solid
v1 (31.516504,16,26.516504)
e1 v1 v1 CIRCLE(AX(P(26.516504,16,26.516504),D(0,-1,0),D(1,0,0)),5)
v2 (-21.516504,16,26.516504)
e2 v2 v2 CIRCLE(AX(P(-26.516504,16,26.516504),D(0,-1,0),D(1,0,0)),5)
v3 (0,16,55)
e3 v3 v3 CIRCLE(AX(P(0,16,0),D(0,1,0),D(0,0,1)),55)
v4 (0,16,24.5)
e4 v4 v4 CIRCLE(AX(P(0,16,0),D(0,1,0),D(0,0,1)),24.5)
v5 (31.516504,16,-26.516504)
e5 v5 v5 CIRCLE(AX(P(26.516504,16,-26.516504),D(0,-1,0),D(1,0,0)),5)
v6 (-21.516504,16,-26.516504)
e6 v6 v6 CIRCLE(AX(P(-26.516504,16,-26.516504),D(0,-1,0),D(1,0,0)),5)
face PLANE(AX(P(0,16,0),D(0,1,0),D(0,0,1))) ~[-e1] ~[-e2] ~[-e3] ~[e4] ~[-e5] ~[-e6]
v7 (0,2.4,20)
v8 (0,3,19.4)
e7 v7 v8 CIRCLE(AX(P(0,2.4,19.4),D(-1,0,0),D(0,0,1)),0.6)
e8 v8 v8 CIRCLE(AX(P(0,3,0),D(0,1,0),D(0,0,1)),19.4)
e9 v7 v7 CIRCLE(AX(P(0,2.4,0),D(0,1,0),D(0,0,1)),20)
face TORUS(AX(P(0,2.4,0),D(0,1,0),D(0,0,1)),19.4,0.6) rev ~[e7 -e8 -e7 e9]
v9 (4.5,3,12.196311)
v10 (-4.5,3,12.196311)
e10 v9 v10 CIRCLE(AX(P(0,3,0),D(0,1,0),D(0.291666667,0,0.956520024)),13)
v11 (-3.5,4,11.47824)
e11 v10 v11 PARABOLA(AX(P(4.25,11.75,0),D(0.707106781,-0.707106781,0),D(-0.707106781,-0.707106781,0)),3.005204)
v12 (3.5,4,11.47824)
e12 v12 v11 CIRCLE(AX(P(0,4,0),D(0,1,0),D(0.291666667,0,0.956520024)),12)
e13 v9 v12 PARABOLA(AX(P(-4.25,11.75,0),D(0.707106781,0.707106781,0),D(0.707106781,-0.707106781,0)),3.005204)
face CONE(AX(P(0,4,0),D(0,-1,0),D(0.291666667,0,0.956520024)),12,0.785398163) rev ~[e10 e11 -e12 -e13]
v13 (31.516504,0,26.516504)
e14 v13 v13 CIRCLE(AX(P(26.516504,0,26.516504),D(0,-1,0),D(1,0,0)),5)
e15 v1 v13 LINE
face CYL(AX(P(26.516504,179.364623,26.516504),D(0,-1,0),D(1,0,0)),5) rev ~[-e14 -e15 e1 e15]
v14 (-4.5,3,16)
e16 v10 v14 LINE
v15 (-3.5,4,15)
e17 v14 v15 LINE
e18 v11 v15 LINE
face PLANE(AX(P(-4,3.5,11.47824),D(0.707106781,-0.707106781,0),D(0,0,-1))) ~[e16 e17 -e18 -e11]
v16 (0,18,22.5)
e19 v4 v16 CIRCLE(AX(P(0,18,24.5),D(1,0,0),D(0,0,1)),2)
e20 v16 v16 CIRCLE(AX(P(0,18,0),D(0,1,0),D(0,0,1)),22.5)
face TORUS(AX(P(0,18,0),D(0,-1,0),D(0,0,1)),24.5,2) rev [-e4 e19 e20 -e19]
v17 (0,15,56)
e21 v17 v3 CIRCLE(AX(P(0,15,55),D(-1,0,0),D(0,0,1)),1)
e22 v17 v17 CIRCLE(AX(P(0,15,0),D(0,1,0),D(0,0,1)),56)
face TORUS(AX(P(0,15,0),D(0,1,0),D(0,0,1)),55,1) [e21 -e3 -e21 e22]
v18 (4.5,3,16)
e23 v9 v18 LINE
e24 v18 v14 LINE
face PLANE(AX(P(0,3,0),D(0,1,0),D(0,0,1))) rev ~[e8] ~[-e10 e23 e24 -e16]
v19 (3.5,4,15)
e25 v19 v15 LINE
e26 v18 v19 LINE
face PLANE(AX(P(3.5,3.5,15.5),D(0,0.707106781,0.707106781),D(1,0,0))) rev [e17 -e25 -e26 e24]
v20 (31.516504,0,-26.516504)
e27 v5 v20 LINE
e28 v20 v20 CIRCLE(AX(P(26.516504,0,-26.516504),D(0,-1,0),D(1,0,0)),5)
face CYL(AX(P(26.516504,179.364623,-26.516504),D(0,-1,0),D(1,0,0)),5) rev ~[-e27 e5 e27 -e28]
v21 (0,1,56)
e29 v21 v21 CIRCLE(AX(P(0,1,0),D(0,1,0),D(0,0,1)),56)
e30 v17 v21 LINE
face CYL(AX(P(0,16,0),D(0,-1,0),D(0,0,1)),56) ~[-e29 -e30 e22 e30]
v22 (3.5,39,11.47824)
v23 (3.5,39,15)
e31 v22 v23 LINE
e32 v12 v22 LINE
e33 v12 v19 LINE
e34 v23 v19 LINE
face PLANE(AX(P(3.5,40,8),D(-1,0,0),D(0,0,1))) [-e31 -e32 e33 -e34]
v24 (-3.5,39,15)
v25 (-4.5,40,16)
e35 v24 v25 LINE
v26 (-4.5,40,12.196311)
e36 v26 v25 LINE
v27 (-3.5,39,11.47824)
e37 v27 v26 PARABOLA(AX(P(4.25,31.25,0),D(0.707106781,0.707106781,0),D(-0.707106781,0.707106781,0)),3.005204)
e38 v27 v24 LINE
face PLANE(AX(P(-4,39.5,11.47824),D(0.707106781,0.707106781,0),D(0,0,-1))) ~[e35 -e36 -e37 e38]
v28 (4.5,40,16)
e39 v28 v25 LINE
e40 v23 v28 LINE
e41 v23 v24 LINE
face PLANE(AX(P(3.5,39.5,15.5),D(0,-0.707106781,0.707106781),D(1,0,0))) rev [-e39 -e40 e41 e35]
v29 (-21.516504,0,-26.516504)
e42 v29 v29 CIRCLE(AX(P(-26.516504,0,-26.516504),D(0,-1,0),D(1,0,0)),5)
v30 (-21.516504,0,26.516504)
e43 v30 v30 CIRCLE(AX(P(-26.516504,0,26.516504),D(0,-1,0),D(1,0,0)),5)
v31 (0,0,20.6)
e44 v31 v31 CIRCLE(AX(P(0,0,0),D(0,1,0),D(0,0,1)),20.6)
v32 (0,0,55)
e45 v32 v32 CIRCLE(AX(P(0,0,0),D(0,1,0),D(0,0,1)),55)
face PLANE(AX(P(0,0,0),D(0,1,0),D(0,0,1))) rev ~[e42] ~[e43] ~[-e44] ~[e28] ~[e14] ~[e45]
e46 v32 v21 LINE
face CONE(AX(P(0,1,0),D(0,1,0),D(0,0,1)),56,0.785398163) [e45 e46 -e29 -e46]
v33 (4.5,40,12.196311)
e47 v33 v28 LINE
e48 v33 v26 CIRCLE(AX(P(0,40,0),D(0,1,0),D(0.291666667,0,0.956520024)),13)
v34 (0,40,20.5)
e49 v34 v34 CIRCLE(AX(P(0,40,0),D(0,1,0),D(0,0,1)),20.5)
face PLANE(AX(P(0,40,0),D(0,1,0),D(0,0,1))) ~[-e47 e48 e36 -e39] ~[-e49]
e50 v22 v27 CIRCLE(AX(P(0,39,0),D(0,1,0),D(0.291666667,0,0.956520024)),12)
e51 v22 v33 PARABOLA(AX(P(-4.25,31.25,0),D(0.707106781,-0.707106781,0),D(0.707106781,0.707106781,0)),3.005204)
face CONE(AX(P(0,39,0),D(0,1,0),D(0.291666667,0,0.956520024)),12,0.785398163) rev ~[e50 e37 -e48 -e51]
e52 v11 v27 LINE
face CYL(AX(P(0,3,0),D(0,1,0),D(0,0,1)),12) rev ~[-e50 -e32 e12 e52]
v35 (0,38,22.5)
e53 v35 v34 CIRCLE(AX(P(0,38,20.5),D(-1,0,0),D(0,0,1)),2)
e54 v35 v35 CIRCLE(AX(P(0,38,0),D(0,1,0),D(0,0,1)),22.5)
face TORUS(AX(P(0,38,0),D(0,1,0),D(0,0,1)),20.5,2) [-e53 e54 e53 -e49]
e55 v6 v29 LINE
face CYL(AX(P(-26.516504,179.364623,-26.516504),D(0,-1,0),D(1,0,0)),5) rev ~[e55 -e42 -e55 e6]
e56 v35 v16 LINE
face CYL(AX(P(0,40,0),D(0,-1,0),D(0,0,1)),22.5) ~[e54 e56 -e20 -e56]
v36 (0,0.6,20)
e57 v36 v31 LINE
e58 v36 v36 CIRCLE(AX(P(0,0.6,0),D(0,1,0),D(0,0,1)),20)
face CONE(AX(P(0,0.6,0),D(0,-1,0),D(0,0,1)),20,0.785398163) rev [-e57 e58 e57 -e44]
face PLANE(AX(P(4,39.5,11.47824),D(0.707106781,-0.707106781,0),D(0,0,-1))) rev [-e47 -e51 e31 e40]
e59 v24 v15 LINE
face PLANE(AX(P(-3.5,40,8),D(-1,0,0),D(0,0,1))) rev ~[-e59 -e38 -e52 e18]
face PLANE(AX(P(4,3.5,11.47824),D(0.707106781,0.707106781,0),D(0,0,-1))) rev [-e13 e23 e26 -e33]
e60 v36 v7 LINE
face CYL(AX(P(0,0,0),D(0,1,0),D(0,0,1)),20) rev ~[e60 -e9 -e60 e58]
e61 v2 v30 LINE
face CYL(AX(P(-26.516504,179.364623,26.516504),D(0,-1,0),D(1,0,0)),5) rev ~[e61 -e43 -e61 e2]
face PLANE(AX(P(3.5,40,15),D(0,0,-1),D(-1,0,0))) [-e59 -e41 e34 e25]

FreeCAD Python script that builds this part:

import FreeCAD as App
import Part
import Sketcher
from FreeCAD import Vector


def edges_at(feature, points):
    """Names of the edges that pass closest to the given points."""
    edges = feature.Shape.Edges
    near = lambda p: min(range(len(edges)), key=lambda i: edges[i].distToShape(Part.Vertex(*p))[0])
    return sorted({f"Edge{near(p) + 1}" for p in points})


def add_polygon(sketch, points):
    """Adds a closed chain of lines whose ends are joined by coincident constraints."""
    first, n = sketch.GeometryCount, len(points)
    for a, b in zip(points, points[1:] + points[:1]):
        sketch.addGeometry(Part.LineSegment(App.Vector(*a, 0), App.Vector(*b, 0)), False)
    for i in range(n):
        sketch.addConstraint(Sketcher.Constraint("Coincident", first + i, 2, first + (i + 1) % n, 1))

doc = App.newDocument("Part")
body = doc.addObject("PartDesign::Body", "Body")

# Sketch on YZ plane
sketch1 = doc.addObject("Sketcher::SketchObject", "Sketch")
body.addObject(sketch1)
sketch1.AttachmentSupport = (doc.YZ_Plane, [""])
sketch1.MapMode = "FlatFace"
add_polygon(sketch1, [(0, 56), (0, 20), (3, 20), (3, 12), (40, 12), (40, 22.5), (16, 22.5), (16, 56)])  # lines 0-7
sketch1.addConstraint(Sketcher.Constraint("Vertical", 0))
sketch1.addConstraint(Sketcher.Constraint("Horizontal", 1))
sketch1.addConstraint(Sketcher.Constraint("Vertical", 2))
sketch1.addConstraint(Sketcher.Constraint("Horizontal", 3))
sketch1.addConstraint(Sketcher.Constraint("Vertical", 4))
sketch1.addConstraint(Sketcher.Constraint("Horizontal", 5))
sketch1.addConstraint(Sketcher.Constraint("Vertical", 6))
sketch1.addConstraint(Sketcher.Constraint("Horizontal", 7))
sketch1.addConstraint(Sketcher.Constraint("PointOnObject", 0, 2, -2))
sketch1.addConstraint(Sketcher.Constraint("DistanceX", 1, 1, 1, 2, 3.0))
sketch1.addConstraint(Sketcher.Constraint("DistanceX", 3, 1, 3, 2, 37.0))
sketch1.addConstraint(Sketcher.Constraint("DistanceX", 5, 2, 5, 1, 24.0))
sketch1.addConstraint(Sketcher.Constraint("DistanceY", 0, 2, 0, 1, 36.0))
sketch1.addConstraint(Sketcher.Constraint("DistanceY", 2, 2, 2, 1, 8.0))
sketch1.addConstraint(Sketcher.Constraint("DistanceY", 4, 1, 4, 2, 10.5))
sketch1.addConstraint(Sketcher.Constraint("DistanceY", -1, 1, 0, 2, 20.0))
revolution = doc.addObject("PartDesign::Revolution", "Revolution")
body.addObject(revolution)
revolution.Profile = sketch1
revolution.ReferenceAxis = (sketch1, ["H_Axis"])
revolution.Angle = 360

# Sketch on XZ plane
sketch2 = doc.addObject("Sketcher::SketchObject", "Sketch001")
body.addObject(sketch2)
sketch2.AttachmentSupport = (doc.XZ_Plane, [""])
sketch2.MapMode = "FlatFace"
sketch2.AttachmentOffset = App.Placement(Vector(0, 0, -40), App.Rotation())
add_polygon(sketch2, [(4, 15), (4, 8), (-4, 8), (-4, 15)])  # lines 0-3
sketch2.addConstraint(Sketcher.Constraint("Vertical", 0))
sketch2.addConstraint(Sketcher.Constraint("Horizontal", 1))
sketch2.addConstraint(Sketcher.Constraint("Vertical", 2))
sketch2.addConstraint(Sketcher.Constraint("Horizontal", 3))
sketch2.addConstraint(Sketcher.Constraint("Equal", 3, 0))
sketch2.addConstraint(Sketcher.Constraint("DistanceX", 1, 2, 1, 1, 7.0))
sketch2.addConstraint(Sketcher.Constraint("DistanceY", -1, 1, 0, 2, 8.0))
sketch2.addConstraint(Sketcher.Constraint("DistanceX", -1, 1, 0, 2, 3.5))
pocket1 = doc.addObject("PartDesign::Pocket", "Pocket")
body.addObject(pocket1)
pocket1.Profile = sketch2
pocket1.Type = "ThroughAll"
pocket1.Reversed = True

# Sketch on XZ plane
sketch3 = doc.addObject("Sketcher::SketchObject", "Sketch002")
body.addObject(sketch3)
sketch3.AttachmentSupport = (doc.XZ_Plane, [""])
sketch3.MapMode = "FlatFace"
sketch3.AttachmentOffset = App.Placement(Vector(0, 0, -16), App.Rotation())
sketch3.addGeometry(Part.Circle(Vector(-27, 27, 0), Vector(0, 0, 1), 5), False)
sketch3.addGeometry(Part.Circle(Vector(27, 27, 0), Vector(0, 0, 1), 5), False)
sketch3.addGeometry(Part.Circle(Vector(27, -27, 0), Vector(0, 0, 1), 5), False)
sketch3.addGeometry(Part.Circle(Vector(-27, -27, 0), Vector(0, 0, 1), 5), False)
sketch3.addConstraint(Sketcher.Constraint("Equal", 0, 1))
sketch3.addConstraint(Sketcher.Constraint("Equal", 1, 2))
sketch3.addConstraint(Sketcher.Constraint("Equal", 2, 3))
sketch3.addConstraint(Sketcher.Constraint("Symmetric", 0, 3, 2, 3, -1, 1))
sketch3.addConstraint(Sketcher.Constraint("Symmetric", 1, 3, 3, 3, -1, 1))
sketch3.addConstraint(Sketcher.Constraint("Symmetric", 0, 3, 1, 3, -2))
sketch3.addConstraint(Sketcher.Constraint("Diameter", 0, 10.0))
sketch3.addConstraint(Sketcher.Constraint("DistanceX", 0, 3, 1, 3, 53.033008))
sketch3.addConstraint(Sketcher.Constraint("DistanceY", 2, 3, 1, 3, 53.033008))
doc.recompute()
hole = doc.addObject("PartDesign::Hole", "Hole")
body.addObject(hole)
hole.Profile = sketch3
hole.ThreadType = "None"
hole.Diameter = 10
hole.DepthType = "ThroughAll"
hole.Reversed = True
doc.recompute()

chamfer = doc.addObject("PartDesign::Chamfer", "Chamfer")
body.addObject(chamfer)
chamfer.Base = (hole, edges_at(hole, [
    (0, 3, -12),
    (-3.5, 40, 13.239),
    (0, 40, 15),
    (3.5, 40, 13.239),
    (-3.5, 3, 13.239),
    (0, 40, -12),
    (3.5, 3, 13.239),
    (0, 3, 15),
]))
chamfer.Size = 1
doc.recompute()

chamfer2 = doc.addObject("PartDesign::Chamfer", "Chamfer001")
body.addObject(chamfer2)
chamfer2.Base = (chamfer, edges_at(chamfer, [(0, 0, -20)]))
chamfer2.Size = 0.6
doc.recompute()

fillet = doc.addObject("PartDesign::Fillet", "Fillet")
body.addObject(fillet)
fillet.Base = (chamfer2, edges_at(chamfer2, [(0, 3, -20)]))
fillet.Radius = 0.6
doc.recompute()

chamfer3 = doc.addObject("PartDesign::Chamfer", "Chamfer002")
body.addObject(chamfer3)
chamfer3.Base = (fillet, edges_at(fillet, [(0, 0, -56)]))
chamfer3.Size = 1
doc.recompute()

fillet2 = doc.addObject("PartDesign::Fillet", "Fillet001")
body.addObject(fillet2)
fillet2.Base = (chamfer3, edges_at(chamfer3, [(0, 16, -56)]))
fillet2.Radius = 1
doc.recompute()

fillet3 = doc.addObject("PartDesign::Fillet", "Fillet002")
body.addObject(fillet3)
fillet3.Base = (fillet2, edges_at(fillet2, [(0, 40, -22.5), (0, 16, -22.5)]))
fillet3.Radius = 2

doc.recompute()
